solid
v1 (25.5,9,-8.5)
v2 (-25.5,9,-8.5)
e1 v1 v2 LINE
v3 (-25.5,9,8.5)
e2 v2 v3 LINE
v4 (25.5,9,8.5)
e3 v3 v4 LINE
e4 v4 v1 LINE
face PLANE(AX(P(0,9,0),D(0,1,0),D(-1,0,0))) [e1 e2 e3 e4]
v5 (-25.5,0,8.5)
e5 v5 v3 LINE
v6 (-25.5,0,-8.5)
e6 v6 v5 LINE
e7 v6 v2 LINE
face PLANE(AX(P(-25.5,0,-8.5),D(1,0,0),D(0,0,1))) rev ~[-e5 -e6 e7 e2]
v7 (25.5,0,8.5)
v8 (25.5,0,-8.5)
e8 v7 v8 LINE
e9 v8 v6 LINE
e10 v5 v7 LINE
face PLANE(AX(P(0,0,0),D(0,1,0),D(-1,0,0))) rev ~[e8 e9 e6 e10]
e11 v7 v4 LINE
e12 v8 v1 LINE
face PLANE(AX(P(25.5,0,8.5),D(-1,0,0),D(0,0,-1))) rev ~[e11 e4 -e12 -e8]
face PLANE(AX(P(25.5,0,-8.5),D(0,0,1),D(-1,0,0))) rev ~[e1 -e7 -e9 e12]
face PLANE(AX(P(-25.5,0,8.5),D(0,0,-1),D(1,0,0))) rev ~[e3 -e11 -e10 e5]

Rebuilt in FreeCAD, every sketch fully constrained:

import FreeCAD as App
import Part
import Sketcher
from FreeCAD import Vector
Q = App.Units.Quantity


def add_polygon(sketch, points):
    """Adds a closed chain of lines whose ends are joined by coincident constraints."""
    first, n = sketch.GeometryCount, len(points)
    for a, b in zip(points, points[1:] + points[:1]):
        sketch.addGeometry(Part.LineSegment(App.Vector(*a, 0), App.Vector(*b, 0)), False)
    for i in range(n):
        sketch.addConstraint(Sketcher.Constraint("Coincident", first + i, 2, first + (i + 1) % n, 1))

doc = App.newDocument("Part")
params = doc.addObject("Spreadsheet::Sheet", "Params")
for row, (alias, value) in enumerate([
    ("sketch1_width", "51 mm"),
    ("sketch1_height", "17 mm"),
    ("pad1_length", "9 mm"),
], start=1):
    params.set(f"A{row}", alias)
    params.set(f"B{row}", "=" + value)
    params.setAlias(f"B{row}", alias)

body = doc.addObject("PartDesign::Body", "Body")

sketch1 = body.newObject("Sketcher::SketchObject", "Sketch")
sketch1.AttachmentSupport = (doc.getObject("XZ_Plane"), [""])
sketch1.MapMode = "FlatFace"
add_polygon(sketch1, [(-26, -8), (-26, 8), (26, 8), (26, -8)])
sketch1.addConstraint([
    Sketcher.Constraint("Vertical", 0),
    Sketcher.Constraint("Horizontal", 1),
    Sketcher.Constraint("Vertical", 2),
    Sketcher.Constraint("Horizontal", 3),
    Sketcher.Constraint("Symmetric", 0, 2, 2, 2, -1, 1),
    Sketcher.Constraint("DistanceX", 1, 1, 1, 2, Q("51 mm")),
    Sketcher.Constraint("DistanceY", 0, 1, 0, 2, Q("17 mm")),
])
sketch1.setExpression("Constraints[9]", "Params.sketch1_width")
sketch1.setExpression("Constraints[10]", "Params.sketch1_height")
pad1 = body.newObject("PartDesign::Pad", "Pad")
pad1.Profile = sketch1
pad1.setExpression("Length", "Params.pad1_length")
pad1.Reversed = True

doc.recompute()
